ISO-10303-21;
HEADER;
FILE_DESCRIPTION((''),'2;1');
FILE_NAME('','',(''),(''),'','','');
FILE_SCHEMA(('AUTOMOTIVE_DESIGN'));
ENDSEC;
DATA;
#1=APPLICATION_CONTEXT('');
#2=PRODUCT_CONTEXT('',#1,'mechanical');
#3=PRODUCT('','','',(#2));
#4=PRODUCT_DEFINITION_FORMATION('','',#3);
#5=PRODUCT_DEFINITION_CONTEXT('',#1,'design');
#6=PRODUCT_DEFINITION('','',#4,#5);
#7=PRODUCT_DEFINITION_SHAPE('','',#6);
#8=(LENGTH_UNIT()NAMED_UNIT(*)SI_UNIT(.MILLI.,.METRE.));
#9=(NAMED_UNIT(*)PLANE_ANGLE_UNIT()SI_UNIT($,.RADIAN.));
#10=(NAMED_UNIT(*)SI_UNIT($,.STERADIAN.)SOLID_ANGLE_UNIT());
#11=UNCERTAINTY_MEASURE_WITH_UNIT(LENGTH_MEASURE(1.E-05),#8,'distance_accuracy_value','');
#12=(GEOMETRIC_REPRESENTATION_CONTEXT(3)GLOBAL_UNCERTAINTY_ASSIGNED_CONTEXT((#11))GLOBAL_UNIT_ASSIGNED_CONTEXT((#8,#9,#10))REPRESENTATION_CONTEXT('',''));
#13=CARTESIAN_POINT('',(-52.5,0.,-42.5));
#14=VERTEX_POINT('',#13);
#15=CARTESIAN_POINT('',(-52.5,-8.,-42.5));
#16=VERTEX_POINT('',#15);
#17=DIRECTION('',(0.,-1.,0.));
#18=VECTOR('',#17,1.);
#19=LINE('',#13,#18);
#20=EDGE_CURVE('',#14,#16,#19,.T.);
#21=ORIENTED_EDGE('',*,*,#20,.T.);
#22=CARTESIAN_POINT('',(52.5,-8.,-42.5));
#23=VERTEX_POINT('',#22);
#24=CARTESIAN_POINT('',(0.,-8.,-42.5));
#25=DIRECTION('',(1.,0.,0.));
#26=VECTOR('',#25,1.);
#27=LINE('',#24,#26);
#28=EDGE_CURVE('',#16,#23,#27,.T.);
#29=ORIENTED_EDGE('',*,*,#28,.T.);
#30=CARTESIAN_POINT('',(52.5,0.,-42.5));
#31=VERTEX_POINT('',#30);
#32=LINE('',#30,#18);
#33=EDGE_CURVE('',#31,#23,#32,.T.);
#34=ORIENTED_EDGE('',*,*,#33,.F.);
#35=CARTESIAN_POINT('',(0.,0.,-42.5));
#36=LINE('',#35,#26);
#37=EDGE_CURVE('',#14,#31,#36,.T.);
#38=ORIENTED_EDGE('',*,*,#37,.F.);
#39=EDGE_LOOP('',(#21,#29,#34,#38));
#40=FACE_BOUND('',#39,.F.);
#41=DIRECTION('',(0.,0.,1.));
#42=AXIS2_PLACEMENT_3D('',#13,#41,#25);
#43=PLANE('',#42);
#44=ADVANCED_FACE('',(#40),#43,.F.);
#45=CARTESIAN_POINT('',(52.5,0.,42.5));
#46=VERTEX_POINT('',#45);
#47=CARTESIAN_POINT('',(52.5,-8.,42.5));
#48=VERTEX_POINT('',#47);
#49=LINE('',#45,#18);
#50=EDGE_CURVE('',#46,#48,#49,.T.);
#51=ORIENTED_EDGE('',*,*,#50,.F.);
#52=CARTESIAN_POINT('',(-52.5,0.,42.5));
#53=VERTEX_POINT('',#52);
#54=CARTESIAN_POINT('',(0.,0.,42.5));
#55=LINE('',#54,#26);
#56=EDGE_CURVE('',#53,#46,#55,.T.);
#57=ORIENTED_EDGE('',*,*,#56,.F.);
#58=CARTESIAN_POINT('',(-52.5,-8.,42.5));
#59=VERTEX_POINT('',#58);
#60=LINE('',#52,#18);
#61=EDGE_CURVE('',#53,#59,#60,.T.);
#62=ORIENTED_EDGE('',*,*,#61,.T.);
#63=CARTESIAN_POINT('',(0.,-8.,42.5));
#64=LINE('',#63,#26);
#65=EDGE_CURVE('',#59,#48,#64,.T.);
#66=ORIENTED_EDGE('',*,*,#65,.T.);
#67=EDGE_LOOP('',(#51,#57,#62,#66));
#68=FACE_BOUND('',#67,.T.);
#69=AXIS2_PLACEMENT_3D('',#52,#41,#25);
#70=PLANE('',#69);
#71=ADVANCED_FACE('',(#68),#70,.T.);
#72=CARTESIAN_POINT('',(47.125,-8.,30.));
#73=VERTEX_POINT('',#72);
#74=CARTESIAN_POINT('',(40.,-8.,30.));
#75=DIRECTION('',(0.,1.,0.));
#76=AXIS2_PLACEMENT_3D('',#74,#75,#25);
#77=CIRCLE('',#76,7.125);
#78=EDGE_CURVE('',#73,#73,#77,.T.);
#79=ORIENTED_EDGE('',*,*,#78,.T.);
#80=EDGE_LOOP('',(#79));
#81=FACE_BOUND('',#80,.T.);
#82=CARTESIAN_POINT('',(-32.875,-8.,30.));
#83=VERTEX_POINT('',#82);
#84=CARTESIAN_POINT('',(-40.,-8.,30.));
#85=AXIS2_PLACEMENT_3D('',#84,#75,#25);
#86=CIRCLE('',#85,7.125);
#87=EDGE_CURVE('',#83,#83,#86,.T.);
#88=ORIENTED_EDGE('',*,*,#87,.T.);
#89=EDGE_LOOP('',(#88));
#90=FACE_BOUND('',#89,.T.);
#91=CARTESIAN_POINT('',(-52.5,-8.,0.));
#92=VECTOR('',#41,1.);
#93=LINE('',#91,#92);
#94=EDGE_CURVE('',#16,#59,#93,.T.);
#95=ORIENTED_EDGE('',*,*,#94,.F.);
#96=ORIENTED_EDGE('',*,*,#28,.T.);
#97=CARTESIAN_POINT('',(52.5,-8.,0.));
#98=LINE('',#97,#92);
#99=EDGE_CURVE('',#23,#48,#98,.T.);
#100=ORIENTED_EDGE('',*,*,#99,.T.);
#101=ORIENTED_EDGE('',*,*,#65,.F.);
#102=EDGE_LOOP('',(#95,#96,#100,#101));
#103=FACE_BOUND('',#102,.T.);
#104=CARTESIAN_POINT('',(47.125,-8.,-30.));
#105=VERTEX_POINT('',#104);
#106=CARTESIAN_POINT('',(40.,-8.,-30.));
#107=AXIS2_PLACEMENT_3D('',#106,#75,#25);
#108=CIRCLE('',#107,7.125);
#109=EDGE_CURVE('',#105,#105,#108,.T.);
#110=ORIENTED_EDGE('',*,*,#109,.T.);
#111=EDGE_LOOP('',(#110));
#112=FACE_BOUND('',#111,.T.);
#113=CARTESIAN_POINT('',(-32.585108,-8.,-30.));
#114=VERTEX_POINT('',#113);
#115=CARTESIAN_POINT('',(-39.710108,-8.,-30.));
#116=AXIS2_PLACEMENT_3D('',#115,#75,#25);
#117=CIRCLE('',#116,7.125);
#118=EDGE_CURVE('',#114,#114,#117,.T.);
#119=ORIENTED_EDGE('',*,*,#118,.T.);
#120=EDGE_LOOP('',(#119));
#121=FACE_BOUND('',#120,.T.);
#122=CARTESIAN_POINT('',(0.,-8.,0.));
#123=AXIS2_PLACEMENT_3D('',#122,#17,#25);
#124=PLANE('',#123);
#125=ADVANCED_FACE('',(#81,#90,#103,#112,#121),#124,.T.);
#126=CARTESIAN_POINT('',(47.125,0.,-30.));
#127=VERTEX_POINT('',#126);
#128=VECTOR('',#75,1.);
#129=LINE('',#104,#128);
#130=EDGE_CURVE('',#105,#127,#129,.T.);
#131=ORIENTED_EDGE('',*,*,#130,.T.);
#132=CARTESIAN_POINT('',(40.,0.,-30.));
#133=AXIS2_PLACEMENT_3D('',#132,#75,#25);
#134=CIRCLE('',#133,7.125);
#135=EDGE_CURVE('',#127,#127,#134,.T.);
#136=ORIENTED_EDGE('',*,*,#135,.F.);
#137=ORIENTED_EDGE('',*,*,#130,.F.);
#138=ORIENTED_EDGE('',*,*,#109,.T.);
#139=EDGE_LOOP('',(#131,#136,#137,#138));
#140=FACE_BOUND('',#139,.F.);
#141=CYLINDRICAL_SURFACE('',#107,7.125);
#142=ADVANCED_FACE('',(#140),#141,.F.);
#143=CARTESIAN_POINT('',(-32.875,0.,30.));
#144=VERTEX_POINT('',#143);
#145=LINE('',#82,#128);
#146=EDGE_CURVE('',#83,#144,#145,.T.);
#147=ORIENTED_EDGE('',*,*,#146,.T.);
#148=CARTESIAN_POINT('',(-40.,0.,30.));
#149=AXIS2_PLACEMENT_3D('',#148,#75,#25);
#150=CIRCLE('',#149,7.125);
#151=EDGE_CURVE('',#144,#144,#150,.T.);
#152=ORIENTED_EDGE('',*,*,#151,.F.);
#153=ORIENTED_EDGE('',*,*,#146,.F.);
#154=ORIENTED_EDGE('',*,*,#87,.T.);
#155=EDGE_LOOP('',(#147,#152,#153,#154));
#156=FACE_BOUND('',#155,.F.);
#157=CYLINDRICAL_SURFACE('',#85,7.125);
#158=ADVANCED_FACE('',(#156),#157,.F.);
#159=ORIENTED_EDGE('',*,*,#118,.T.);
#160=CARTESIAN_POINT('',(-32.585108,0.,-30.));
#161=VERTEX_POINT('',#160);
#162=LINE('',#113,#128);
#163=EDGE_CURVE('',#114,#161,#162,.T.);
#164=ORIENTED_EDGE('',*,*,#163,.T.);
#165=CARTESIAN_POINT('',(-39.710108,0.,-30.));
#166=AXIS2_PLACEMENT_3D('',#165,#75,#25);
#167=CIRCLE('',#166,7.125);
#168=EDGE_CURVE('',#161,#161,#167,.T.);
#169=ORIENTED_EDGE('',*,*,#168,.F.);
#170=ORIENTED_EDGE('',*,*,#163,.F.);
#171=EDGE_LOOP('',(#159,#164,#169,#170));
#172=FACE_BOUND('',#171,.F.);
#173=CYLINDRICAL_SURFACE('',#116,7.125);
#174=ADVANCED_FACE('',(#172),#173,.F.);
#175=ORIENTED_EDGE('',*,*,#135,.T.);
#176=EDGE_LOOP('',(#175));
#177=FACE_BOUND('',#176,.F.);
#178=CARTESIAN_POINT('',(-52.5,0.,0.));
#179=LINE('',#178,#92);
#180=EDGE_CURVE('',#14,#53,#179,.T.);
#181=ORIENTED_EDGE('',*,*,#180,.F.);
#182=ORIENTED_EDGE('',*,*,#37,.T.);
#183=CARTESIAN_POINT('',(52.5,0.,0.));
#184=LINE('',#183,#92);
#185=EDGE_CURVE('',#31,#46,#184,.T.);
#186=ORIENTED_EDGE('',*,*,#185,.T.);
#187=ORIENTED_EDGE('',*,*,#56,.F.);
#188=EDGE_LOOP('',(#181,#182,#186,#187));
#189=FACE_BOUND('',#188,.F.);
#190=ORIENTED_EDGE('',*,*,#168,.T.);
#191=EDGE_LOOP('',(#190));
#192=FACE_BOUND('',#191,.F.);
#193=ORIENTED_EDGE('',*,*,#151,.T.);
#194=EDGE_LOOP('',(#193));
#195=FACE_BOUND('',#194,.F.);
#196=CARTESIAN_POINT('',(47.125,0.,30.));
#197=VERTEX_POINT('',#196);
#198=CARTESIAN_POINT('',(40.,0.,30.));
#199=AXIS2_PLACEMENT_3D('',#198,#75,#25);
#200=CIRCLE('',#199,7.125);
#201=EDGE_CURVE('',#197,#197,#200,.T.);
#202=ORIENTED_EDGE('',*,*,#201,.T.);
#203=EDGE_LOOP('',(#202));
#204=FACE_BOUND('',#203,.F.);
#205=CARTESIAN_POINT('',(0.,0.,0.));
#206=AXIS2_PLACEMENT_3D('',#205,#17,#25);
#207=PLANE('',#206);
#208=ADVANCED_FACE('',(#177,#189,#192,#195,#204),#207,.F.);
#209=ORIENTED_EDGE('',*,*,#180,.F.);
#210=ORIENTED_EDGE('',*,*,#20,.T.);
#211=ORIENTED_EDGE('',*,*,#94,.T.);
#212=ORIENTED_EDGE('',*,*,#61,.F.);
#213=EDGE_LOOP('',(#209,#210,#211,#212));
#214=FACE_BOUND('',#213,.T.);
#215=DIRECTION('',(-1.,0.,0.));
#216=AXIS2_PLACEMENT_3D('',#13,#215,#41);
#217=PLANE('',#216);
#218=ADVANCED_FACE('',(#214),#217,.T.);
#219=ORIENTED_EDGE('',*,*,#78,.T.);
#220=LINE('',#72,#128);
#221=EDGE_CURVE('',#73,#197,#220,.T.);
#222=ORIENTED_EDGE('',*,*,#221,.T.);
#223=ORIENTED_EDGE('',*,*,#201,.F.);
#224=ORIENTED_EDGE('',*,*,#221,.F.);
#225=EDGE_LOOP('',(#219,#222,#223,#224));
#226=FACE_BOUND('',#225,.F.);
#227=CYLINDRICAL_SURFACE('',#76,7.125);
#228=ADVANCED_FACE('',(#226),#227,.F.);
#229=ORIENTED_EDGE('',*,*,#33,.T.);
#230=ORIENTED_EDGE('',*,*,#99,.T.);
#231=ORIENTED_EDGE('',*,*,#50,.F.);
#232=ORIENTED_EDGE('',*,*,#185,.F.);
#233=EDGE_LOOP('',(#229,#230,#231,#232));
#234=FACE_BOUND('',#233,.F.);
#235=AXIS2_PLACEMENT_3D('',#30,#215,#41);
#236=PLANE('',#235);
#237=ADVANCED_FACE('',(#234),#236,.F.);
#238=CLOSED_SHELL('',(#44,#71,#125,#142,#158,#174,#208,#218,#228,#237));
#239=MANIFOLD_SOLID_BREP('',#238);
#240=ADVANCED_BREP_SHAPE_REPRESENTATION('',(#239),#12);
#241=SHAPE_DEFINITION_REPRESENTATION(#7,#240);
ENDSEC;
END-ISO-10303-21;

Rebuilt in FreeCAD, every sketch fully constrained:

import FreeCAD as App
import Part
import Sketcher

V = App.Vector

doc = App.newDocument("Part")
body = doc.addObject("PartDesign::Body", "Body")

sketch1 = body.newObject("Sketcher::SketchObject", "Sketch")
sketch1.AttachmentSupport = (doc.getObject("XZ_Plane"), [""])
sketch1.MapMode = "FlatFace"
sketch1.addGeometry(Part.LineSegment(V(-52.5, 42.5, 0), V(-52.5, -42.5, 0)), False)
sketch1.addGeometry(Part.LineSegment(V(-52.5, -42.5, 0), V(52.5, -42.5, 0)), False)
sketch1.addGeometry(Part.LineSegment(V(52.5, -42.5, 0), V(52.5, 42.5, 0)), False)
sketch1.addGeometry(Part.LineSegment(V(52.5, 42.5, 0), V(-52.5, 42.5, 0)), False)
sketch1.addConstraint(Sketcher.Constraint("Coincident", 0, 2, 1, 1))
sketch1.addConstraint(Sketcher.Constraint("Coincident", 1, 2, 2, 1))
sketch1.addConstraint(Sketcher.Constraint("Coincident", 2, 2, 3, 1))
sketch1.addConstraint(Sketcher.Constraint("Coincident", 3, 2, 0, 1))
sketch1.addConstraint(Sketcher.Constraint("Vertical", 0))
sketch1.addConstraint(Sketcher.Constraint("Horizontal", 1))
sketch1.addConstraint(Sketcher.Constraint("Vertical", 2))
sketch1.addConstraint(Sketcher.Constraint("Horizontal", 3))
sketch1.addConstraint(Sketcher.Constraint("Symmetric", 0, 2, 2, 2, -1, 1))
sketch1.addConstraint(Sketcher.Constraint("DistanceX", 1, 1, 1, 2, 105.0))
sketch1.addConstraint(Sketcher.Constraint("DistanceY", 0, 2, 0, 1, 85.0))
pad1 = body.newObject("PartDesign::Pad", "Pad")
pad1.Profile = sketch1
pad1.Length = 8

sketch2 = body.newObject("Sketcher::SketchObject", "Sketch001")
sketch2.AttachmentSupport = (doc.getObject("XZ_Plane"), [""])
sketch2.MapMode = "FlatFace"
sketch2.addGeometry(Part.Circle(V(-40, 30, 0), V(0, 0, 1), 4.4), False)
sketch2.addGeometry(Part.Circle(V(40, 30, 0), V(0, 0, 1), 4.4), False)
sketch2.addGeometry(Part.Circle(V(40, -30, 0), V(0, 0, 1), 4.4), False)
sketch2.addGeometry(Part.Circle(V(-39.710108, -30, 0), V(0, 0, 1), 4.4), False)
sketch2.addConstraint(Sketcher.Constraint("Equal", 0, 1))
sketch2.addConstraint(Sketcher.Constraint("Equal", 1, 2))
sketch2.addConstraint(Sketcher.Constraint("Equal", 2, 3))
sketch2.addConstraint(Sketcher.Constraint("Symmetric", 0, 3, 2, 3, -1, 1))
sketch2.addConstraint(Sketcher.Constraint("Symmetric", 0, 3, 1, 3, -2))
sketch2.addConstraint(Sketcher.Constraint("Horizontal", 2, 3, 3, 3))
sketch2.addConstraint(Sketcher.Constraint("Diameter", 0, 8.8))
sketch2.addConstraint(Sketcher.Constraint("DistanceX", 0, 3, -1, 1, 40.0))
sketch2.addConstraint(Sketcher.Constraint("DistanceY", -1, 1, 0, 3, 30.0))
sketch2.addConstraint(Sketcher.Constraint("DistanceX", 3, 3, -1, 1, 39.710108))
doc.recompute()
hole = body.newObject("PartDesign::Hole", "Hole")
hole.Profile = sketch2
hole.ThreadType = "None"
hole.Diameter = 8.8
hole.DepthType = "ThroughAll"
hole.HoleCutType = "Counterbore"
hole.HoleCutDiameter = 14.25
hole.HoleCutDepth = 8
hole.Reversed = True

doc.recompute()
